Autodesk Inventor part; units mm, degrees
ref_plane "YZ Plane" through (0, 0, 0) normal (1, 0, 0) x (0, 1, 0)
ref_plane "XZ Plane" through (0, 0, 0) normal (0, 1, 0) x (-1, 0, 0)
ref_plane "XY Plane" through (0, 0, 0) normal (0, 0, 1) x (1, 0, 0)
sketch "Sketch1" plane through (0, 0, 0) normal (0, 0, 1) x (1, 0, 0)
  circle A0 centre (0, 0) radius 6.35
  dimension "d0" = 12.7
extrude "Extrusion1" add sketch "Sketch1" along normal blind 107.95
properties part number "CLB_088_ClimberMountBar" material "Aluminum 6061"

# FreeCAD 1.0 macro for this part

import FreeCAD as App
import Part
import Sketcher

V = App.Vector
Q = App.Units.Quantity

doc = App.newDocument("Part")
body = doc.addObject("PartDesign::Body", "Body")

# Sketch on XY plane
sketch1 = body.newObject("Sketcher::SketchObject", "Sketch")
sketch1.AttachmentSupport = (doc.getObject("XY_Plane"), [""])
sketch1.MapMode = "FlatFace"
sketch1.addGeometry(Part.Circle(V(0, 0, 0), V(0, 0, 1), 6), False)
sketch1.addConstraint(Sketcher.Constraint("Coincident", 0, 3, -1, 1))
sketch1.addConstraint(Sketcher.Constraint("Diameter", 0, Q("0.5 in")))
pad1 = body.newObject("PartDesign::Pad", "Pad")
pad1.Profile = sketch1
pad1.Length = Q("4.25 in")

doc.recompute()
